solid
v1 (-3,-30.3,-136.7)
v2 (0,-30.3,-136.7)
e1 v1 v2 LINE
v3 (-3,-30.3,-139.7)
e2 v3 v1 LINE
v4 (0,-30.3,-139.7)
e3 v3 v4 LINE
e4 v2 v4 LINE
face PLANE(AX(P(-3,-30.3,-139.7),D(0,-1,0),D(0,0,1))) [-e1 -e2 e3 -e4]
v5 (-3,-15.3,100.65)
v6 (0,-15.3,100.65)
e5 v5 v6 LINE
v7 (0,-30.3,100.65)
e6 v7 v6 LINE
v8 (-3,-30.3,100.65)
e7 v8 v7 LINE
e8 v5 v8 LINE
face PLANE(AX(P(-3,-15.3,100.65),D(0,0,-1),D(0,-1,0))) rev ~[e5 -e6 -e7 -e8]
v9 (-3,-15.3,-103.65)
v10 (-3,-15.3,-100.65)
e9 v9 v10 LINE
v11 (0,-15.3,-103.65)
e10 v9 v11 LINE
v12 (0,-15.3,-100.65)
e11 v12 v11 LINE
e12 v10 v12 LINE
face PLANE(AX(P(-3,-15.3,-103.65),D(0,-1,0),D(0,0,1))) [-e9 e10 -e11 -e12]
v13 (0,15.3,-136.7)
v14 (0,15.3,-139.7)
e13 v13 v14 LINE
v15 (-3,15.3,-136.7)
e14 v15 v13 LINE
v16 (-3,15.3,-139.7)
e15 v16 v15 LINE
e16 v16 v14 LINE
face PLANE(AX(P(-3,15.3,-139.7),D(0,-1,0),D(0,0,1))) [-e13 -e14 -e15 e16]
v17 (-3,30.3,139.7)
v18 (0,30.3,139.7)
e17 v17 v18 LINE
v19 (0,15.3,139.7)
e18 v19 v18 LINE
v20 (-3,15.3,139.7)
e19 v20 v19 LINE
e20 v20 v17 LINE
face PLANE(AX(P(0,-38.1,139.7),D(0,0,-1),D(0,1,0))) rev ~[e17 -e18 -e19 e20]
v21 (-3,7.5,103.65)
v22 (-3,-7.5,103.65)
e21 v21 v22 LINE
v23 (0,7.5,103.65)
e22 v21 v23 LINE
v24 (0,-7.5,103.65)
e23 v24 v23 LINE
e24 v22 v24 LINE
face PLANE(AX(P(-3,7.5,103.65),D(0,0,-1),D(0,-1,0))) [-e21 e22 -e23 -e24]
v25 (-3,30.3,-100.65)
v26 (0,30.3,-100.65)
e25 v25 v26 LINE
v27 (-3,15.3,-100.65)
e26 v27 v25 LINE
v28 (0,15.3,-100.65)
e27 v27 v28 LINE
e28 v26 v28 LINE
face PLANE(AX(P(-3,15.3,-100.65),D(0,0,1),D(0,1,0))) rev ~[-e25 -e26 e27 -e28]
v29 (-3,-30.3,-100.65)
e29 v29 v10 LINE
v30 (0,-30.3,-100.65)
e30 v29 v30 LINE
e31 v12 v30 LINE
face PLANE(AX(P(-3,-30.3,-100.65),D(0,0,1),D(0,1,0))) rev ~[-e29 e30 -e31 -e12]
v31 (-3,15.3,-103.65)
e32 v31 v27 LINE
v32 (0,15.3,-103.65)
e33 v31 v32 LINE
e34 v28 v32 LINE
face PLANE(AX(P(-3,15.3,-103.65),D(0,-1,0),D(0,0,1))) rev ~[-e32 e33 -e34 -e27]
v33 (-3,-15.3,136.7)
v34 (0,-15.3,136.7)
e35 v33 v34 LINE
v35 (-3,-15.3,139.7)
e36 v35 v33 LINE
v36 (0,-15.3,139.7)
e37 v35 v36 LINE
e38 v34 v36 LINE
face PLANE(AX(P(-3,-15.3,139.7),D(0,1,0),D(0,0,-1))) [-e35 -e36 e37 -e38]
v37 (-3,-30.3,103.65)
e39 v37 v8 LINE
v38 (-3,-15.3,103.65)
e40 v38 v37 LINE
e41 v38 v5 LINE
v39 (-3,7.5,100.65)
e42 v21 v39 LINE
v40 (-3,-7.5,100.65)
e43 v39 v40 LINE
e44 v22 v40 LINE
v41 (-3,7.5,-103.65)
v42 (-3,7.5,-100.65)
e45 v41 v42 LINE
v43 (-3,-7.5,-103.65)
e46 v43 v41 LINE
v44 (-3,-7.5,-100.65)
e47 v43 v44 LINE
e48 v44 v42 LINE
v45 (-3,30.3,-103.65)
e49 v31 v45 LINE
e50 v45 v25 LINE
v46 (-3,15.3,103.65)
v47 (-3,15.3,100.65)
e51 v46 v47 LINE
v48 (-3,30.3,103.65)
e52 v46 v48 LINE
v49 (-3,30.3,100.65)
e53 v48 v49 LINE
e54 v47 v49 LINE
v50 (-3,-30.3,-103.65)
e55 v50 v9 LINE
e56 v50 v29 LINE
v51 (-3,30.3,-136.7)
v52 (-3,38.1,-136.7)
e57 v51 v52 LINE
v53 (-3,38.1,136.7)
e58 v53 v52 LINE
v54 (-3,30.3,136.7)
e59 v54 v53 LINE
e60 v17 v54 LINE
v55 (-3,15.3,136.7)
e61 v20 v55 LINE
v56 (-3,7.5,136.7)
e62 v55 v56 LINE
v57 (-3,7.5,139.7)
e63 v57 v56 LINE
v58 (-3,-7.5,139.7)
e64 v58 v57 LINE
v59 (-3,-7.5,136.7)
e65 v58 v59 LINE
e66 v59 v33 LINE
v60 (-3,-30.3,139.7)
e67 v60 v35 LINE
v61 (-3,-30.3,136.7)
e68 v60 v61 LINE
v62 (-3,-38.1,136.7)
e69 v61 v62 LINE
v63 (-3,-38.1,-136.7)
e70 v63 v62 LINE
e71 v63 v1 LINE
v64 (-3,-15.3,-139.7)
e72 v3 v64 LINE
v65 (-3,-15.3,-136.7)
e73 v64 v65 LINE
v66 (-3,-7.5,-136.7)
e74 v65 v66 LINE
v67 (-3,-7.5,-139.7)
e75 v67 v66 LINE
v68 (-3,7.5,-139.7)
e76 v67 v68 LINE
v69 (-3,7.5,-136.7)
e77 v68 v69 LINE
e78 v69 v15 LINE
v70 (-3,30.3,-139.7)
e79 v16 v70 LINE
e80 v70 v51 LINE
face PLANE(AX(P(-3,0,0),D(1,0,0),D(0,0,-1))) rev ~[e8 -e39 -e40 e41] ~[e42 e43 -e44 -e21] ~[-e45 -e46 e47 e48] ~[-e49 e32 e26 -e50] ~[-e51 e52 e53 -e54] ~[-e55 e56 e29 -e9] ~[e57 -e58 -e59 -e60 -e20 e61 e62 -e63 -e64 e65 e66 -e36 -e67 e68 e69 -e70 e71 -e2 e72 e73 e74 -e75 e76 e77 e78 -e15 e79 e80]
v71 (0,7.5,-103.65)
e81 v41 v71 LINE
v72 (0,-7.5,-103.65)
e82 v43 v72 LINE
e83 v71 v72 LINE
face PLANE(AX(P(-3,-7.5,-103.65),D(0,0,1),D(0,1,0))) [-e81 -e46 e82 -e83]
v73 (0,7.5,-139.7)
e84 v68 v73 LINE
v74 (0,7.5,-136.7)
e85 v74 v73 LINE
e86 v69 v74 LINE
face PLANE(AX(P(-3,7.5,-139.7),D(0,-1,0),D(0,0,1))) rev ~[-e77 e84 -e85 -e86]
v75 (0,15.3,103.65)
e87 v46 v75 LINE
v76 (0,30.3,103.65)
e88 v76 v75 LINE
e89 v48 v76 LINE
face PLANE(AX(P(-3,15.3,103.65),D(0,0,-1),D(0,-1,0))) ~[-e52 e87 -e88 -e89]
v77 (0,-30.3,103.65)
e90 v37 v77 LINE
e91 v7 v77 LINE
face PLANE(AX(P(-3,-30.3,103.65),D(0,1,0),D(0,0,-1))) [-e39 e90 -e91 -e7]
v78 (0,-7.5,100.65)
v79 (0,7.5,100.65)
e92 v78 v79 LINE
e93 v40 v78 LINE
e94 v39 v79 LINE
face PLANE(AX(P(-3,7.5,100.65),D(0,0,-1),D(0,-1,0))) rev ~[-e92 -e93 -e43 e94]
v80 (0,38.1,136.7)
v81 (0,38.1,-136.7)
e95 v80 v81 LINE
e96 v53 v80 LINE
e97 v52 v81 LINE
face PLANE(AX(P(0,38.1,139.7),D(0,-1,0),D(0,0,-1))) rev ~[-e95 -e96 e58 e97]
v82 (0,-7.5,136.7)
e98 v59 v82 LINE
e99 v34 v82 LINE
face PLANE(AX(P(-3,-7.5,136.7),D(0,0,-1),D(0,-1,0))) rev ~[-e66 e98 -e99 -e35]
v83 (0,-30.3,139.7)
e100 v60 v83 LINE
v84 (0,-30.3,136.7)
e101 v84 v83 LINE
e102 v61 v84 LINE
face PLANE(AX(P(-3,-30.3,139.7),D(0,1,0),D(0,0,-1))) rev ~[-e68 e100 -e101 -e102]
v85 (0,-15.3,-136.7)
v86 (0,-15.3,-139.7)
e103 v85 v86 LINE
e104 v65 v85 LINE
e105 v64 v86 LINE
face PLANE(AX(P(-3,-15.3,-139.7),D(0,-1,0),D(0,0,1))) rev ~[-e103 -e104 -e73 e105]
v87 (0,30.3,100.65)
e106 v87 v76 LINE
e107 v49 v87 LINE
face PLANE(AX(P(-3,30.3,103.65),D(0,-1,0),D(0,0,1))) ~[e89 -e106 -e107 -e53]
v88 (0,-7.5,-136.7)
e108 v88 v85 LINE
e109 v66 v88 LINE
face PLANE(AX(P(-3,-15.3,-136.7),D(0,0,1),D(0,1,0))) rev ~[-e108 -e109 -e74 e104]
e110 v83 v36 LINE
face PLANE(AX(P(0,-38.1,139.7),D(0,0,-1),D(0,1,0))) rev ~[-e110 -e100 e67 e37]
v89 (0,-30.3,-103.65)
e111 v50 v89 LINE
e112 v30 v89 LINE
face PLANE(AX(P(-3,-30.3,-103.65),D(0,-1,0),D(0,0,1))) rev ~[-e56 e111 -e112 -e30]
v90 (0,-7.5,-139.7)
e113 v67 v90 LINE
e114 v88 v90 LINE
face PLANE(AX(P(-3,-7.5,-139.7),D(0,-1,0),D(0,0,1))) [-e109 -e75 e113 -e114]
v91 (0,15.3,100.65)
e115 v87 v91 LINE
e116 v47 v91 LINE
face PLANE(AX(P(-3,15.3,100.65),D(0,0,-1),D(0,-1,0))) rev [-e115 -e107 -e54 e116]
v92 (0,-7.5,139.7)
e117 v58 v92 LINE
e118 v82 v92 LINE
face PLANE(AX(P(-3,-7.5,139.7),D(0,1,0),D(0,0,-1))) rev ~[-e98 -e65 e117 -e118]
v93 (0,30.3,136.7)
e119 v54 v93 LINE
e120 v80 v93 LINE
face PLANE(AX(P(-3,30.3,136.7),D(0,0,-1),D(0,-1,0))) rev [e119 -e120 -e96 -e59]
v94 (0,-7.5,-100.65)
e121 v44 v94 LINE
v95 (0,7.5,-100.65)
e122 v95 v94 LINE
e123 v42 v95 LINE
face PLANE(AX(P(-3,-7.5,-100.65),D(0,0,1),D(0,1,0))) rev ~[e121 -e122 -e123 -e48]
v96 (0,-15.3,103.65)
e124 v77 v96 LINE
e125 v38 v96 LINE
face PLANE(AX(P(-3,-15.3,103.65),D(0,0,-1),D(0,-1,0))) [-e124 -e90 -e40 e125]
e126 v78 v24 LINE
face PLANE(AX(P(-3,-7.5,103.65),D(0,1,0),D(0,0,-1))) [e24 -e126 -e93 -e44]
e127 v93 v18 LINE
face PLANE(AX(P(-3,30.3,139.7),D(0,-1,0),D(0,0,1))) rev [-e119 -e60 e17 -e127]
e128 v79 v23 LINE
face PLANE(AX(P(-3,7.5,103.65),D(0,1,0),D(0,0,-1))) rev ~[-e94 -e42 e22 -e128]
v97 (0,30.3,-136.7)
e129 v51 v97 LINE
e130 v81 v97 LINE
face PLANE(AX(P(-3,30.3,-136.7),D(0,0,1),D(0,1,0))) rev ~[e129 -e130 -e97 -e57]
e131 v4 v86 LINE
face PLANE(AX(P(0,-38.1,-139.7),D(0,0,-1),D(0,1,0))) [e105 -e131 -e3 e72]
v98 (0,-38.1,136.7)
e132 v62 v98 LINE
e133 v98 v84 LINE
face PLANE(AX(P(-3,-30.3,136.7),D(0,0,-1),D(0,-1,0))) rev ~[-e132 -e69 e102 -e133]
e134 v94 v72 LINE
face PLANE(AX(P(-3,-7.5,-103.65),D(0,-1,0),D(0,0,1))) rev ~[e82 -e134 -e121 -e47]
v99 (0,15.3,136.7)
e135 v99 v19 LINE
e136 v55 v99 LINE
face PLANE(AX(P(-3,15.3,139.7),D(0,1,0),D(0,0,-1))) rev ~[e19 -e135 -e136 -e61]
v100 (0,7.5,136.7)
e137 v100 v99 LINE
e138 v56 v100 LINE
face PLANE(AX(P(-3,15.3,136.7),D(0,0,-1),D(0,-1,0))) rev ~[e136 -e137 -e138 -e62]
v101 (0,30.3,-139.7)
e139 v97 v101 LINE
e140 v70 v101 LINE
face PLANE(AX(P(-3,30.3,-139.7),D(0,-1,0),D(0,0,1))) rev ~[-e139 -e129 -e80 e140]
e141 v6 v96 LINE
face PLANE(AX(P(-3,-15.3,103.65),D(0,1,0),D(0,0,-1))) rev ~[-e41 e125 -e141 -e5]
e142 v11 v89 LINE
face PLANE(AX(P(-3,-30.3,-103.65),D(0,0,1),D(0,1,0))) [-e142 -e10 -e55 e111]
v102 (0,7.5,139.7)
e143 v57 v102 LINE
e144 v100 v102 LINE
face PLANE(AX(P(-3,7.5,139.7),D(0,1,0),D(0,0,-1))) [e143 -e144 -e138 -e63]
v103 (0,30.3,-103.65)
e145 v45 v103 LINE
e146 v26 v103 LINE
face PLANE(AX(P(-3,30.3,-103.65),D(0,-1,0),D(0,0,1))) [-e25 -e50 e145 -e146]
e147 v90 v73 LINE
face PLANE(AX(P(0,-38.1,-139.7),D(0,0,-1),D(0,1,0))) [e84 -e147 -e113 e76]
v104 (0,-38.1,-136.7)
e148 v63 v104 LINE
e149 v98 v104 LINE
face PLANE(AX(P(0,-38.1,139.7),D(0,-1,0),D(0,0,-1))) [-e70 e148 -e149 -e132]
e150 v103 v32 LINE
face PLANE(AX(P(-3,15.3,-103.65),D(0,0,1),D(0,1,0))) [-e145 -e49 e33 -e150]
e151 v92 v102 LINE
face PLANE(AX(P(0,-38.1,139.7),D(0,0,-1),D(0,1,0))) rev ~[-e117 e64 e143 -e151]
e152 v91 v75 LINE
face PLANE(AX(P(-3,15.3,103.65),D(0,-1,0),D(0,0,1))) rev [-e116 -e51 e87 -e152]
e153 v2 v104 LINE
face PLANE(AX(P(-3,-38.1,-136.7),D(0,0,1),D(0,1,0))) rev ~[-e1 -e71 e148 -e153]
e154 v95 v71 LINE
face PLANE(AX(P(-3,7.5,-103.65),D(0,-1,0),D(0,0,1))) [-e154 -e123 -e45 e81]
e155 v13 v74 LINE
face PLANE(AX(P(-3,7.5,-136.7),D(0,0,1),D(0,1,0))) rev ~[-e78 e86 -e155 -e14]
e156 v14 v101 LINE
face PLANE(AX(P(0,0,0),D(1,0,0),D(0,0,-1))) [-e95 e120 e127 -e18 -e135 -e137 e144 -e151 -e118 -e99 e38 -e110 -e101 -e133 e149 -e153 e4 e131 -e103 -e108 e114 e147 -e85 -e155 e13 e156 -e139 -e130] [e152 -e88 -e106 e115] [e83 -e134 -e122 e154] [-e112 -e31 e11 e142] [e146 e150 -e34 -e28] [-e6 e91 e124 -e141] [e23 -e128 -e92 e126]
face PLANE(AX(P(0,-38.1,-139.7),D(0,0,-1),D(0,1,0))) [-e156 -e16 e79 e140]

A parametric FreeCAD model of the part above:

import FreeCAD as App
import Part
import Sketcher

V = App.Vector

doc = App.newDocument("Part")
body = doc.addObject("PartDesign::Body", "Body")

# Sketch on YZ plane
sketch1 = body.newObject("Sketcher::SketchObject", "Sketch")
sketch1.AttachmentSupport = (doc.getObject("YZ_Plane"), [""])
sketch1.MapMode = "FlatFace"
sketch1.addGeometry([
    Part.LineSegment(V(38.1, 139.7, 0), V(-38.1, 139.7, 0)),
    Part.LineSegment(V(-38.1, 139.7, 0), V(-38.1, -139.7, 0)),
    Part.LineSegment(V(-38.1, -139.7, 0), V(38.1, -139.7, 0)),
    Part.LineSegment(V(38.1, -139.7, 0), V(38.1, 139.7, 0)),
], False)
sketch1.addConstraint([
    Sketcher.Constraint("Coincident", 0, 2, 1, 1),
    Sketcher.Constraint("Coincident", 1, 2, 2, 1),
    Sketcher.Constraint("Coincident", 2, 2, 3, 1),
    Sketcher.Constraint("Coincident", 3, 2, 0, 1),
    Sketcher.Constraint("Horizontal", 0),
    Sketcher.Constraint("Vertical", 1),
    Sketcher.Constraint("Horizontal", 2),
    Sketcher.Constraint("Vertical", 3),
    Sketcher.Constraint("Symmetric", 0, 2, 2, 2, -1, 1),
    Sketcher.Constraint("DistanceX", 0, 2, 0, 1, 76.2),
    Sketcher.Constraint("DistanceY", 1, 2, 1, 1, 279.4),
])
pad1 = body.newObject("PartDesign::Pad", "Pad")
pad1.Profile = sketch1
pad1.Length = 3
pad1.Reversed = True

# Sketch on YZ plane
sketch2 = body.newObject("Sketcher::SketchObject", "Sketch001")
sketch2.AttachmentSupport = (doc.getObject("YZ_Plane"), [""])
sketch2.MapMode = "FlatFace"
sketch2.AttachmentOffset = App.Placement(V(0, 0, -3), App.Rotation())
sketch2.addGeometry([
    Part.LineSegment(V(30.3, -103.65, 0), V(15.3, -103.65, 0)),  # 0
    Part.LineSegment(V(15.3, -103.65, 0), V(15.3, -100.65, 0)),  # 1
    Part.LineSegment(V(15.3, -100.65, 0), V(30.3, -100.65, 0)),  # 2
    Part.LineSegment(V(30.3, -100.65, 0), V(30.3, -103.65, 0)),  # 3
    Part.LineSegment(V(38.1, -139.7, 0), V(30.3, -139.7, 0)),  # 4
    Part.LineSegment(V(30.3, -139.7, 0), V(30.3, -136.7, 0)),  # 5
    Part.LineSegment(V(30.3, -136.7, 0), V(38.1, -136.7, 0)),  # 6
    Part.LineSegment(V(38.1, -136.7, 0), V(38.1, -139.7, 0)),  # 7
], False)
sketch2.addConstraint([
    Sketcher.Constraint("Coincident", 0, 2, 1, 1),
    Sketcher.Constraint("Coincident", 1, 2, 2, 1),
    Sketcher.Constraint("Coincident", 2, 2, 3, 1),
    Sketcher.Constraint("Coincident", 3, 2, 0, 1),
    Sketcher.Constraint("Coincident", 4, 2, 5, 1),
    Sketcher.Constraint("Coincident", 5, 2, 6, 1),
    Sketcher.Constraint("Coincident", 6, 2, 7, 1),
    Sketcher.Constraint("Coincident", 7, 2, 4, 1),
    Sketcher.Constraint("Horizontal", 0),
    Sketcher.Constraint("Vertical", 1),
    Sketcher.Constraint("Horizontal", 2),
    Sketcher.Constraint("Vertical", 3),
    Sketcher.Constraint("Horizontal", 4),
    Sketcher.Constraint("Vertical", 5),
    Sketcher.Constraint("Horizontal", 6),
    Sketcher.Constraint("Vertical", 7),
    Sketcher.Constraint("Vertical", 3, 2, 4, 2),
    Sketcher.Constraint("Equal", 3, 5),
    Sketcher.Constraint("DistanceX", 0, 2, 0, 1, 15.0),
    Sketcher.Constraint("DistanceY", 1, 1, 1, 2, 3.0),
    Sketcher.Constraint("DistanceX", 4, 2, 4, 1, 7.8),
    Sketcher.Constraint("DistanceX", -1, 1, 0, 2, 15.3),
    Sketcher.Constraint("DistanceY", 4, 2, -1, 1, 139.7),
    Sketcher.Constraint("DistanceY", 0, 2, -1, 1, 103.65),
])
pocket1 = body.newObject("PartDesign::Pocket", "Pocket")
pocket1.Profile = sketch2
pocket1.Type = "ThroughAll"
pocket1.Reversed = True
doc.recompute()

linearpattern = body.newObject("PartDesign::LinearPattern", "LinearPattern")
linearpattern.Originals = [pocket1]
linearpattern.Direction = (doc.getObject("Y_Axis"), [""])
linearpattern.Mode = "offset"
linearpattern.Offset = 22.8
linearpattern.Occurrences = 4
linearpattern.Reversed = True
body.Tip = linearpattern
doc.recompute()

mirrored = body.newObject("PartDesign::Mirrored", "Mirrored")
mirrored.Originals = [pocket1]
mirrored.MirrorPlane = (doc.getObject("XY_Plane"), [""])
body.Tip = mirrored

# Sketch on YZ plane
sketch3 = body.newObject("Sketcher::SketchObject", "Sketch002")
sketch3.AttachmentSupport = (doc.getObject("YZ_Plane"), [""])
sketch3.MapMode = "FlatFace"
sketch3.AttachmentOffset = App.Placement(V(0, 0, -3), App.Rotation())
sketch3.addGeometry([
    Part.LineSegment(V(-7.5, 103.65, 0), V(7.5, 103.65, 0)),  # 0
    Part.LineSegment(V(7.5, 103.65, 0), V(7.5, 100.65, 0)),  # 1
    Part.LineSegment(V(7.5, 100.65, 0), V(-7.5, 100.65, 0)),  # 2
    Part.LineSegment(V(-7.5, 100.65, 0), V(-7.5, 103.65, 0)),  # 3
    Part.LineSegment(V(7.5, 139.7, 0), V(15.3, 139.7, 0)),  # 4
    Part.LineSegment(V(15.3, 139.7, 0), V(15.3, 136.7, 0)),  # 5
    Part.LineSegment(V(15.3, 136.7, 0), V(7.5, 136.7, 0)),  # 6
    Part.LineSegment(V(7.5, 136.7, 0), V(7.5, 139.7, 0)),  # 7
], False)
sketch3.addConstraint([
    Sketcher.Constraint("Coincident", 0, 2, 1, 1),
    Sketcher.Constraint("Coincident", 1, 2, 2, 1),
    Sketcher.Constraint("Coincident", 2, 2, 3, 1),
    Sketcher.Constraint("Coincident", 3, 2, 0, 1),
    Sketcher.Constraint("Coincident", 4, 2, 5, 1),
    Sketcher.Constraint("Coincident", 5, 2, 6, 1),
    Sketcher.Constraint("Coincident", 6, 2, 7, 1),
    Sketcher.Constraint("Coincident", 7, 2, 4, 1),
    Sketcher.Constraint("Horizontal", 0),
    Sketcher.Constraint("Vertical", 1),
    Sketcher.Constraint("Horizontal", 2),
    Sketcher.Constraint("Vertical", 3),
    Sketcher.Constraint("Horizontal", 4),
    Sketcher.Constraint("Vertical", 5),
    Sketcher.Constraint("Horizontal", 6),
    Sketcher.Constraint("Vertical", 7),
    Sketcher.Constraint("Vertical", 1, 2, 6, 2),
    Sketcher.Constraint("Equal", 3, 5),
    Sketcher.Constraint("DistanceX", 0, 1, 0, 2, 15.0),
    Sketcher.Constraint("DistanceY", 1, 2, 1, 1, 3.0),
    Sketcher.Constraint("DistanceX", 4, 1, 4, 2, 7.8),
    Sketcher.Constraint("DistanceX", -1, 1, 0, 2, 7.5),
    Sketcher.Constraint("DistanceY", -1, 1, 4, 2, 139.7),
    Sketcher.Constraint("DistanceY", -1, 1, 0, 2, 103.65),
])
pocket2 = body.newObject("PartDesign::Pocket", "Pocket001")
pocket2.Profile = sketch3
pocket2.Type = "ThroughAll"
pocket2.Reversed = True

# Sketch on YZ plane
sketch4 = body.newObject("Sketcher::SketchObject", "Sketch003")
sketch4.AttachmentSupport = (doc.getObject("YZ_Plane"), [""])
sketch4.MapMode = "FlatFace"
sketch4.AttachmentOffset = App.Placement(V(0, 0, -3), App.Rotation())
sketch4.addGeometry([
    Part.LineSegment(V(-30.3, 103.65, 0), V(-15.3, 103.65, 0)),  # 0
    Part.LineSegment(V(-15.3, 103.65, 0), V(-15.3, 100.65, 0)),  # 1
    Part.LineSegment(V(-15.3, 100.65, 0), V(-30.3, 100.65, 0)),  # 2
    Part.LineSegment(V(-30.3, 100.65, 0), V(-30.3, 103.65, 0)),  # 3
    Part.LineSegment(V(-15.3, 139.7, 0), V(-7.5, 139.7, 0)),  # 4
    Part.LineSegment(V(-7.5, 139.7, 0), V(-7.5, 136.7, 0)),  # 5
    Part.LineSegment(V(-7.5, 136.7, 0), V(-15.3, 136.7, 0)),  # 6
    Part.LineSegment(V(-15.3, 136.7, 0), V(-15.3, 139.7, 0)),  # 7
], False)
sketch4.addConstraint([
    Sketcher.Constraint("Coincident", 0, 2, 1, 1),
    Sketcher.Constraint("Coincident", 1, 2, 2, 1),
    Sketcher.Constraint("Coincident", 2, 2, 3, 1),
    Sketcher.Constraint("Coincident", 3, 2, 0, 1),
    Sketcher.Constraint("Coincident", 4, 2, 5, 1),
    Sketcher.Constraint("Coincident", 5, 2, 6, 1),
    Sketcher.Constraint("Coincident", 6, 2, 7, 1),
    Sketcher.Constraint("Coincident", 7, 2, 4, 1),
    Sketcher.Constraint("Horizontal", 0),
    Sketcher.Constraint("Vertical", 1),
    Sketcher.Constraint("Horizontal", 2),
    Sketcher.Constraint("Vertical", 3),
    Sketcher.Constraint("Horizontal", 4),
    Sketcher.Constraint("Vertical", 5),
    Sketcher.Constraint("Horizontal", 6),
    Sketcher.Constraint("Vertical", 7),
    Sketcher.Constraint("Vertical", 1, 2, 6, 2),
    Sketcher.Constraint("Equal", 3, 5),
    Sketcher.Constraint("DistanceX", 0, 1, 0, 2, 15.0),
    Sketcher.Constraint("DistanceY", 1, 2, 1, 1, 3.0),
    Sketcher.Constraint("DistanceX", 4, 1, 4, 2, 7.8),
    Sketcher.Constraint("DistanceX", 0, 2, -1, 1, 15.3),
    Sketcher.Constraint("DistanceY", -1, 1, 4, 2, 139.7),
    Sketcher.Constraint("DistanceY", -1, 1, 0, 2, 103.65),
])
pocket3 = body.newObject("PartDesign::Pocket", "Pocket002")
pocket3.Profile = sketch4
pocket3.Type = "ThroughAll"
pocket3.Reversed = True

# Sketch on YZ plane
sketch5 = body.newObject("Sketcher::SketchObject", "Sketch004")
sketch5.AttachmentSupport = (doc.getObject("YZ_Plane"), [""])
sketch5.MapMode = "FlatFace"
sketch5.AttachmentOffset = App.Placement(V(0, 0, -3), App.Rotation())
sketch5.addGeometry([
    Part.LineSegment(V(-53.1, 103.65, 0), V(-38.1, 103.65, 0)),  # 0
    Part.LineSegment(V(-38.1, 103.65, 0), V(-38.1, 100.65, 0)),  # 1
    Part.LineSegment(V(-38.1, 100.65, 0), V(-53.1, 100.65, 0)),  # 2
    Part.LineSegment(V(-53.1, 100.65, 0), V(-53.1, 103.65, 0)),  # 3
    Part.LineSegment(V(-38.1, 139.7, 0), V(-30.3, 139.7, 0)),  # 4
    Part.LineSegment(V(-30.3, 139.7, 0), V(-30.3, 136.7, 0)),  # 5
    Part.LineSegment(V(-30.3, 136.7, 0), V(-38.1, 136.7, 0)),  # 6
    Part.LineSegment(V(-38.1, 136.7, 0), V(-38.1, 139.7, 0)),  # 7
], False)
sketch5.addConstraint([
    Sketcher.Constraint("Coincident", 0, 2, 1, 1),
    Sketcher.Constraint("Coincident", 1, 2, 2, 1),
    Sketcher.Constraint("Coincident", 2, 2, 3, 1),
    Sketcher.Constraint("Coincident", 3, 2, 0, 1),
    Sketcher.Constraint("Coincident", 4, 2, 5, 1),
    Sketcher.Constraint("Coincident", 5, 2, 6, 1),
    Sketcher.Constraint("Coincident", 6, 2, 7, 1),
    Sketcher.Constraint("Coincident", 7, 2, 4, 1),
    Sketcher.Constraint("Horizontal", 0),
    Sketcher.Constraint("Vertical", 1),
    Sketcher.Constraint("Horizontal", 2),
    Sketcher.Constraint("Vertical", 3),
    Sketcher.Constraint("Horizontal", 4),
    Sketcher.Constraint("Vertical", 5),
    Sketcher.Constraint("Horizontal", 6),
    Sketcher.Constraint("Vertical", 7),
    Sketcher.Constraint("Vertical", 1, 2, 6, 2),
    Sketcher.Constraint("Equal", 3, 5),
    Sketcher.Constraint("DistanceX", 0, 1, 0, 2, 15.0),
    Sketcher.Constraint("DistanceY", 1, 2, 1, 1, 3.0),
    Sketcher.Constraint("DistanceX", 4, 1, 4, 2, 7.8),
    Sketcher.Constraint("DistanceX", 0, 2, -1, 1, 38.1),
    Sketcher.Constraint("DistanceY", -1, 1, 4, 2, 139.7),
    Sketcher.Constraint("DistanceY", -1, 1, 0, 2, 103.65),
])
pocket4 = body.newObject("PartDesign::Pocket", "Pocket003")
pocket4.Profile = sketch5
pocket4.Type = "ThroughAll"
pocket4.Reversed = True

doc.recompute()
